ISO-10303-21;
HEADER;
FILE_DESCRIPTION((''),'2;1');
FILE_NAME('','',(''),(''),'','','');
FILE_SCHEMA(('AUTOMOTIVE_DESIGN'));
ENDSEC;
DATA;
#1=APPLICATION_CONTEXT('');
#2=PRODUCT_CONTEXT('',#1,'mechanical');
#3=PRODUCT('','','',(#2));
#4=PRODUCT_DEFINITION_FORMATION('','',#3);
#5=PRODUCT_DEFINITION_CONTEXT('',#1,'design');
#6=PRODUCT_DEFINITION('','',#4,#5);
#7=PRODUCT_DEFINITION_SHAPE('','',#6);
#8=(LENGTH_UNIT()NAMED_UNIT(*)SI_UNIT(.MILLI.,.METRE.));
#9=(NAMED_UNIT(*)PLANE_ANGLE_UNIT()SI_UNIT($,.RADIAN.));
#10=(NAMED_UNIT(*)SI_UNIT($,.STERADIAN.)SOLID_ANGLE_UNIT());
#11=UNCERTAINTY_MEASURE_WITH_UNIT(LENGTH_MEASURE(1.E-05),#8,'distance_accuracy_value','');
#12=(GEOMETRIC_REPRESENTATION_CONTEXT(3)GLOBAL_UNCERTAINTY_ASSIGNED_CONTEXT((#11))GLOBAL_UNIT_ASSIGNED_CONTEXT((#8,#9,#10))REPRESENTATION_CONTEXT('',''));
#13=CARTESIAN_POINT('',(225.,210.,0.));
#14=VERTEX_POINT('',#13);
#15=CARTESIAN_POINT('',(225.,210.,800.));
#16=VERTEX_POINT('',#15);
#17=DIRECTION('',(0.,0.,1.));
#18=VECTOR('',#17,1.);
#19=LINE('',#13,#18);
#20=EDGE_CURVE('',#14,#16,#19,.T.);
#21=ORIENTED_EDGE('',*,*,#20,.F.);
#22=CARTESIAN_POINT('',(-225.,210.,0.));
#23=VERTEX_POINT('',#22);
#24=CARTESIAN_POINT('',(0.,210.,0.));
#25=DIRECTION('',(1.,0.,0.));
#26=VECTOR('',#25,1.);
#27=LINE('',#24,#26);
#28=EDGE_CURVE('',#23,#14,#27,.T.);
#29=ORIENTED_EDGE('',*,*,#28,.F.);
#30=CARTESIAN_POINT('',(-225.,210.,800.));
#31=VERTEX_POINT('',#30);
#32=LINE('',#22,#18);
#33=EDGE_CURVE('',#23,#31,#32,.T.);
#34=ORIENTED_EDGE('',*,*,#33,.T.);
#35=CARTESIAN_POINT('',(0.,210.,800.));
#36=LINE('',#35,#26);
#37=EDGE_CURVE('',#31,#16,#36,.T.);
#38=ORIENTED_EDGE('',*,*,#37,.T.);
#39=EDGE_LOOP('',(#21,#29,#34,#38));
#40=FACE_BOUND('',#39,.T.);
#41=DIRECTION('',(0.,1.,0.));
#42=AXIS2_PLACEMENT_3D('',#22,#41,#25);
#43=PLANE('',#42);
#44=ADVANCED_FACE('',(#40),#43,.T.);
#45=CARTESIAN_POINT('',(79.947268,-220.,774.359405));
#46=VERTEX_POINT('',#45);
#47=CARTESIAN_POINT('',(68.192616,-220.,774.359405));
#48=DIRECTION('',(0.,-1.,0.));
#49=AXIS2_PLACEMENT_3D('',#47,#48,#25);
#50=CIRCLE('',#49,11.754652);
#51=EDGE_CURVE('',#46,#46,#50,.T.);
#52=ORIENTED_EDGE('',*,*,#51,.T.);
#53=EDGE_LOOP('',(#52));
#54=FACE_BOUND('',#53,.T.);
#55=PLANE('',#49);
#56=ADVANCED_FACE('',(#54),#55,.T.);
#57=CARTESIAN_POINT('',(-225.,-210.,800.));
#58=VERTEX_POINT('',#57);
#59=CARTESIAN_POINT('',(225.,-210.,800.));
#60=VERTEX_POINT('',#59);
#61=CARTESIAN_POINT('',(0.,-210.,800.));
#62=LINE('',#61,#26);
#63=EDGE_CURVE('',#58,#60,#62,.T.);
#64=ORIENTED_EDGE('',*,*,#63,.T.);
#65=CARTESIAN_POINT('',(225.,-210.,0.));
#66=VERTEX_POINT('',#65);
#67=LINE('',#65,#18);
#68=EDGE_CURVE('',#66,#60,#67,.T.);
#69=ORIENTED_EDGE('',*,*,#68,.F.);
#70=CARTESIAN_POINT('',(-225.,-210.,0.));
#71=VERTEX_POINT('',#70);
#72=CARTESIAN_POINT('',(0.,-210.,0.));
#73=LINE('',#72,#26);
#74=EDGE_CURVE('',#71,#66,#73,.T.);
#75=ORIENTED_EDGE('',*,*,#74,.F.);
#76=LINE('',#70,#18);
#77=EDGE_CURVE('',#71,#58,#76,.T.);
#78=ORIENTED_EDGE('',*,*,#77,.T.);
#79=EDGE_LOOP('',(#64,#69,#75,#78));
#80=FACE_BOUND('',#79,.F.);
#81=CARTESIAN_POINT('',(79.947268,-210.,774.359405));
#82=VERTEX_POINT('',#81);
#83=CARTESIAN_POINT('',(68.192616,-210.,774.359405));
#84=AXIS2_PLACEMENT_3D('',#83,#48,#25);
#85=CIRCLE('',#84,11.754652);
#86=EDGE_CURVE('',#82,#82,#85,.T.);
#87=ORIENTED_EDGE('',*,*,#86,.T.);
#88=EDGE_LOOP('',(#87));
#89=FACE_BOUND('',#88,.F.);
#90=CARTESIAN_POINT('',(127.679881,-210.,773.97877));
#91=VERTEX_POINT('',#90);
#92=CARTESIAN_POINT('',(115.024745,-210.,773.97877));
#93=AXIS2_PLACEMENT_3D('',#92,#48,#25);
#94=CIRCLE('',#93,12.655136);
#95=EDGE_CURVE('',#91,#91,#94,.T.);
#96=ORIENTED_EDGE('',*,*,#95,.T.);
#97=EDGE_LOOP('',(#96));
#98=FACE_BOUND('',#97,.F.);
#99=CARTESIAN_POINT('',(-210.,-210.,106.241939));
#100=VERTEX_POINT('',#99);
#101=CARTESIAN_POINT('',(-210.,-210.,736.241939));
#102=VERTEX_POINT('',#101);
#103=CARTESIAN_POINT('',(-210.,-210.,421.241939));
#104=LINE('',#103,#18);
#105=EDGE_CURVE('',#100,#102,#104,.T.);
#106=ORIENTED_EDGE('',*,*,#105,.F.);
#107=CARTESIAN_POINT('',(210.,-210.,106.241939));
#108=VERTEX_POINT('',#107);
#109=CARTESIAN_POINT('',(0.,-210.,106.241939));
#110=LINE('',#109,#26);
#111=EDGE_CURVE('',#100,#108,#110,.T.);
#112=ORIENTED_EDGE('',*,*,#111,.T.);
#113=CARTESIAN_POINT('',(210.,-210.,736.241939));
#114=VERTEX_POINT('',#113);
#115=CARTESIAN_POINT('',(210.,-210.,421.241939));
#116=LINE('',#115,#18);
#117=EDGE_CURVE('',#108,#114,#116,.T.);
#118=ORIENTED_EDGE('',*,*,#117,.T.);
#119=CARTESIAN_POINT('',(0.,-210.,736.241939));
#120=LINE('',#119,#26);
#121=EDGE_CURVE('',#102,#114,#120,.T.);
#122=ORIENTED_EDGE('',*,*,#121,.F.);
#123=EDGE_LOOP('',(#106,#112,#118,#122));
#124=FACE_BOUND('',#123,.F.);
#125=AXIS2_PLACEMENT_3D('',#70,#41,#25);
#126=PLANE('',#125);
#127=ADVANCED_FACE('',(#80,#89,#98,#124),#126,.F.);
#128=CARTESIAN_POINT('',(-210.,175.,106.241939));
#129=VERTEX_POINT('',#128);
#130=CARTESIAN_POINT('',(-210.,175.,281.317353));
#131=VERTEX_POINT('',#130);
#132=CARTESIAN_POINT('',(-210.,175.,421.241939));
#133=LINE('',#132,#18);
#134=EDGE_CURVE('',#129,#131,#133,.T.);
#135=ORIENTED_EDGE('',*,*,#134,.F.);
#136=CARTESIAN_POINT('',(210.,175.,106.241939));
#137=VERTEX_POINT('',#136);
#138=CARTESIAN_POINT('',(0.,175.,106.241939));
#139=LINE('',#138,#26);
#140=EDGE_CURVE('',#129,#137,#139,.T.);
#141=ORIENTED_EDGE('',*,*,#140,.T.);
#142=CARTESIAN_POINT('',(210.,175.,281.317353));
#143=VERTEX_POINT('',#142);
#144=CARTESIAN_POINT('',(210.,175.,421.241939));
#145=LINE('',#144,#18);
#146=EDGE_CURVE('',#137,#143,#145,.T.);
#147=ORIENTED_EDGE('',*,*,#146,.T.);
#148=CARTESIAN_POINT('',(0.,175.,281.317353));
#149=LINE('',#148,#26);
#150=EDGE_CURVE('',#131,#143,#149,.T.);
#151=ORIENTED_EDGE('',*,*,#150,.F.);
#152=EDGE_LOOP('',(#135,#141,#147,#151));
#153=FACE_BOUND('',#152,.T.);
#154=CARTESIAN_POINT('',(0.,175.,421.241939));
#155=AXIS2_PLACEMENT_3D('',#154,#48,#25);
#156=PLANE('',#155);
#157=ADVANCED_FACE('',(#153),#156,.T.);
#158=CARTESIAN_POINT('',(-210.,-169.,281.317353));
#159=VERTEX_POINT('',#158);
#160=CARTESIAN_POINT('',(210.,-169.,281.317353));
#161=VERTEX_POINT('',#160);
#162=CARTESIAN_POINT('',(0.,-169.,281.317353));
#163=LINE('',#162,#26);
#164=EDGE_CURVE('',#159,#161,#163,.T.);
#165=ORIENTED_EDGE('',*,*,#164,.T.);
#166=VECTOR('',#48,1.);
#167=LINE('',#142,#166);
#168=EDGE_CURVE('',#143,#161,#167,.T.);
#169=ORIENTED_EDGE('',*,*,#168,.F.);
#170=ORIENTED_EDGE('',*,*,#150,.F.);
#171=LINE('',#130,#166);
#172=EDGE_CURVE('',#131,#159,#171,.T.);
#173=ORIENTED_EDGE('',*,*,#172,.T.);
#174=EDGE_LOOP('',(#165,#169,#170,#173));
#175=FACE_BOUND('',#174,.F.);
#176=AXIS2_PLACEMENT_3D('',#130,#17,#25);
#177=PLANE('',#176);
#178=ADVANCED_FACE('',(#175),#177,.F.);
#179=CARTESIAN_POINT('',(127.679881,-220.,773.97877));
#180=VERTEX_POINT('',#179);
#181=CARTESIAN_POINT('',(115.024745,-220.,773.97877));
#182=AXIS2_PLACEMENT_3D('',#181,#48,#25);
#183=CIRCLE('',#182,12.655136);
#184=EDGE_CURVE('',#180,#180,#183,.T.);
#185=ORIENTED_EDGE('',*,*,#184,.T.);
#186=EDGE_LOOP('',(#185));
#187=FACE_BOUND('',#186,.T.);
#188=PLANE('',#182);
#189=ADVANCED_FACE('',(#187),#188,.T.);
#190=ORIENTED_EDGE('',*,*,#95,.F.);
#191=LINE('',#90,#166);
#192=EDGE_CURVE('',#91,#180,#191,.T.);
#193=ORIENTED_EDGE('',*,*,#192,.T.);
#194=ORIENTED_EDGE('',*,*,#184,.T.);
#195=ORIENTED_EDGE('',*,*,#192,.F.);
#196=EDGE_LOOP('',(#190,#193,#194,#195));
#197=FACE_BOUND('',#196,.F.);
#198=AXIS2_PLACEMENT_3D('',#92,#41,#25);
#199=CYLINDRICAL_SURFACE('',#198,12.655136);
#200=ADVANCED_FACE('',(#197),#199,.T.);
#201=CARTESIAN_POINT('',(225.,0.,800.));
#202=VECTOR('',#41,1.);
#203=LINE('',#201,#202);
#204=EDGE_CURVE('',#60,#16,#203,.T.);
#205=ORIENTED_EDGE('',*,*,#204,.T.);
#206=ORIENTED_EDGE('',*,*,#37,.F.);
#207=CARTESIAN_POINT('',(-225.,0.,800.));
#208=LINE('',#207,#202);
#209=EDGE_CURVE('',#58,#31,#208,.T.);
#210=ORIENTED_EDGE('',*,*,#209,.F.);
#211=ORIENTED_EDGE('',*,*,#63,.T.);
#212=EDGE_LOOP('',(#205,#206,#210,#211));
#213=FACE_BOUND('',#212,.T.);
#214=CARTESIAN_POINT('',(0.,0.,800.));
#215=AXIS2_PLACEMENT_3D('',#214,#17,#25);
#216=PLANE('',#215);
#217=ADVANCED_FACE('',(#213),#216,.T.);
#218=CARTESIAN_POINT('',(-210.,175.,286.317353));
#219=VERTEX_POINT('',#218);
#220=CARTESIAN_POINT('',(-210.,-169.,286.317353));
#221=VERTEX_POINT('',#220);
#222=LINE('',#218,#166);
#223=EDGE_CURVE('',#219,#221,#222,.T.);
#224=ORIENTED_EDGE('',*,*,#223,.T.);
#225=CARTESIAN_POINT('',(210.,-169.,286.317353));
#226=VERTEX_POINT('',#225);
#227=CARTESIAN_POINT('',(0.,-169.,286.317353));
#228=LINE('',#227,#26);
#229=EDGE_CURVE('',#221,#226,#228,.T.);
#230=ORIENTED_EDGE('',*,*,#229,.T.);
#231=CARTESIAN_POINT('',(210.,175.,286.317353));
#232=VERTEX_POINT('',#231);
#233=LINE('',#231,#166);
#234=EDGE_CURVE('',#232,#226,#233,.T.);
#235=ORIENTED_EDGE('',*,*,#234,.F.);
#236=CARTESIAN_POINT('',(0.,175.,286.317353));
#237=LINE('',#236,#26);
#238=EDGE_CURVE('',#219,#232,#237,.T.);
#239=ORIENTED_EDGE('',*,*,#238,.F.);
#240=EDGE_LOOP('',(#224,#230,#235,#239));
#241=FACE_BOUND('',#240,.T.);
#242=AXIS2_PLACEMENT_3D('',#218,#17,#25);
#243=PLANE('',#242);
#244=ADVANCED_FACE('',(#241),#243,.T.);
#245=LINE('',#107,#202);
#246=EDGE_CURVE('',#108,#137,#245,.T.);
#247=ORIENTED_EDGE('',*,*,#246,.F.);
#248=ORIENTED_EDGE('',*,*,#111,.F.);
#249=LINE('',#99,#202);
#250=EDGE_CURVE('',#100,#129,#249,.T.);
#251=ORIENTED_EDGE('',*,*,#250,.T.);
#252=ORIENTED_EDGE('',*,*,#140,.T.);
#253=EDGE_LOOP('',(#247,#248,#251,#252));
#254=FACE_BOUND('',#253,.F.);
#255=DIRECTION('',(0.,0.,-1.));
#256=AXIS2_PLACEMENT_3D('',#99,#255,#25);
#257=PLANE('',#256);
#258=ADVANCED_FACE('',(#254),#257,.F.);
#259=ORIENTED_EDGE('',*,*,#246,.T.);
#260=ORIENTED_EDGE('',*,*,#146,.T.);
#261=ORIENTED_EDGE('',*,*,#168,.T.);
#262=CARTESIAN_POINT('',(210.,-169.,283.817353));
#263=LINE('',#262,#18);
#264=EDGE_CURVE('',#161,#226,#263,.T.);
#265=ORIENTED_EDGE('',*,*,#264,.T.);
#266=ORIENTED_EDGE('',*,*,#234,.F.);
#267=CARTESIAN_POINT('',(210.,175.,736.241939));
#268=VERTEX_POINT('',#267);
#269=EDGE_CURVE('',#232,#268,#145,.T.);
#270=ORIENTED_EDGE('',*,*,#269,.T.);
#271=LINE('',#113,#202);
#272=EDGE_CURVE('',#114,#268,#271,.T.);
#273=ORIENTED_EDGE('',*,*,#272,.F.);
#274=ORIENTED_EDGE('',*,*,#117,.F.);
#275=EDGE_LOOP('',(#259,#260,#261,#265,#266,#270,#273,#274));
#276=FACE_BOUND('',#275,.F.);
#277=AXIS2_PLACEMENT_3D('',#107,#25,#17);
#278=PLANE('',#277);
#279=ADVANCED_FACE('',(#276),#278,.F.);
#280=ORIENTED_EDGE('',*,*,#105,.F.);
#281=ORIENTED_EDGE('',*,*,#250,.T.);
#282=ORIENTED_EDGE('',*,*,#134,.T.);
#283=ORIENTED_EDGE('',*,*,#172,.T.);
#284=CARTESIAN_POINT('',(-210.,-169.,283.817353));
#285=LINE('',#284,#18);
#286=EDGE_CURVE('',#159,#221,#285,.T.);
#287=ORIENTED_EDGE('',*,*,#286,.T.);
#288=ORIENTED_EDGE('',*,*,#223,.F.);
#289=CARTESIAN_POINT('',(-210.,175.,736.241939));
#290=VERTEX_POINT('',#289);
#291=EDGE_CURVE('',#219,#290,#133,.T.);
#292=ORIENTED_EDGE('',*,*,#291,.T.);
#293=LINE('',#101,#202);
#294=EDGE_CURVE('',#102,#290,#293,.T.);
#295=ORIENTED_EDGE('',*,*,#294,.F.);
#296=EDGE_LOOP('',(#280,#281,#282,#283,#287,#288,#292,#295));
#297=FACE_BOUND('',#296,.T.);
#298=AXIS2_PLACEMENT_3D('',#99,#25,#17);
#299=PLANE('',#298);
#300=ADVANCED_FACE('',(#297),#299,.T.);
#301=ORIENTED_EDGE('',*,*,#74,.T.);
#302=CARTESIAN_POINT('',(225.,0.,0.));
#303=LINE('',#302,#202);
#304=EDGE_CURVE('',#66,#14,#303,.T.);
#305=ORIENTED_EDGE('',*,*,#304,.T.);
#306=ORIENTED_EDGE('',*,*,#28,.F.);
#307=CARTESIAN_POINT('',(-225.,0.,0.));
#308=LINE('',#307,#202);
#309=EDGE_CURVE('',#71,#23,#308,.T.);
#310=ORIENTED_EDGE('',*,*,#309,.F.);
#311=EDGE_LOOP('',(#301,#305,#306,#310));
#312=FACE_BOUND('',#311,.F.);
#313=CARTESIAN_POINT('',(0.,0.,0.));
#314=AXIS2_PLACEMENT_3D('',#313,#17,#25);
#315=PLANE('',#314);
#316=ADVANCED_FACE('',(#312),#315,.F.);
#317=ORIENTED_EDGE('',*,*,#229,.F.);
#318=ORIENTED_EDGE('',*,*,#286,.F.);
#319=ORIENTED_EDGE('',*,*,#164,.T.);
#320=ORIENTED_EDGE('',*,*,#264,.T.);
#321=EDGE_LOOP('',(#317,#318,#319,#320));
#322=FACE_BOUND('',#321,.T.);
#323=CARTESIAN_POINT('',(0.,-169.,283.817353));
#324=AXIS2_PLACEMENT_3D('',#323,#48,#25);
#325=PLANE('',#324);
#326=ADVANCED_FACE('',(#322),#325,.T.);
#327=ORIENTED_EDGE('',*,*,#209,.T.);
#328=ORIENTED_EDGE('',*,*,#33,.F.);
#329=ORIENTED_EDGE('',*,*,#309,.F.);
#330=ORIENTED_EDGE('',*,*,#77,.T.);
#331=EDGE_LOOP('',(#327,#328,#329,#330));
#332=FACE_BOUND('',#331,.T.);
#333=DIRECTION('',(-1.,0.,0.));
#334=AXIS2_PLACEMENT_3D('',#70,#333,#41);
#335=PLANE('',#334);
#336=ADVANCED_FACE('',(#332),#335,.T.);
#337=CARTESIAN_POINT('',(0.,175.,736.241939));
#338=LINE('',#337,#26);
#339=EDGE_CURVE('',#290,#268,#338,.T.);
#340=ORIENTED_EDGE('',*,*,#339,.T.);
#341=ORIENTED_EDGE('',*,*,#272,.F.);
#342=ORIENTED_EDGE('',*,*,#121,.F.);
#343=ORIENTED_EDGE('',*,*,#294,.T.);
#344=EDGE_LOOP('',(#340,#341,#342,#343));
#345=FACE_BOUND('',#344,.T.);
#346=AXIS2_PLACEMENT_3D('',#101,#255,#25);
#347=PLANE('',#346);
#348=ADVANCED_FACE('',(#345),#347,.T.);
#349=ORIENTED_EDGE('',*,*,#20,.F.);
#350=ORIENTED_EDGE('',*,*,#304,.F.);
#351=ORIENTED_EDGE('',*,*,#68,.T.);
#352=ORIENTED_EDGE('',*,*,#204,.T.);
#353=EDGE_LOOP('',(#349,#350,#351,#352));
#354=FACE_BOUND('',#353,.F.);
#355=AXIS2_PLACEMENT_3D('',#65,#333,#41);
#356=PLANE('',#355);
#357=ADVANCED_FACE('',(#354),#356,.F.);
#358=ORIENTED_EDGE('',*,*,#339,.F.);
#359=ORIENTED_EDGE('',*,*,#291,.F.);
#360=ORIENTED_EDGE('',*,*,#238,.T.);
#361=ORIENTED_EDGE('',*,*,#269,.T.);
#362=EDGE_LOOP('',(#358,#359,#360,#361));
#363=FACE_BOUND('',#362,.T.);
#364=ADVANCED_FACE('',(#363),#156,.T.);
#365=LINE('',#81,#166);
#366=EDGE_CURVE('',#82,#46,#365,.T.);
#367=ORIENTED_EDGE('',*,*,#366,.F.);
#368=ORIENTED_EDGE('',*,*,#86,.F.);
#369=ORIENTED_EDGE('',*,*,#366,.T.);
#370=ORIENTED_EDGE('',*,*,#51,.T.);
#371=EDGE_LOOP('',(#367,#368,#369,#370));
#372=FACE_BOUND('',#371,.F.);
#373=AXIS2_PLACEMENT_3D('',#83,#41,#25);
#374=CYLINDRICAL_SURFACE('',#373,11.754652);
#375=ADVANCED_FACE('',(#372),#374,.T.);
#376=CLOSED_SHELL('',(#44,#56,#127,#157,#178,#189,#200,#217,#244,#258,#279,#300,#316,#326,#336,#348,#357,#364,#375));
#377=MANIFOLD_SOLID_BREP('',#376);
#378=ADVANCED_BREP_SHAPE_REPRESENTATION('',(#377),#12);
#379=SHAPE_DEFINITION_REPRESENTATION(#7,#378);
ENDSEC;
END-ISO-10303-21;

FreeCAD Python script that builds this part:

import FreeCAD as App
import Part
import Sketcher

V = App.Vector
Q = App.Units.Quantity


def add_polygon(sketch, points):
    """Adds a closed chain of lines whose ends are joined by coincident constraints."""
    first, n = sketch.GeometryCount, len(points)
    for a, b in zip(points, points[1:] + points[:1]):
        sketch.addGeometry(Part.LineSegment(App.Vector(*a, 0), App.Vector(*b, 0)), False)
    for i in range(n):
        sketch.addConstraint(Sketcher.Constraint("Coincident", first + i, 2, first + (i + 1) % n, 1))

doc = App.newDocument("Part")
body = doc.addObject("PartDesign::Body", "Body")

sketch1 = doc.addObject("Sketcher::SketchObject", "Sketch")
body.addObject(sketch1)
sketch1.AttachmentSupport = (doc.XY_Plane, [""])
sketch1.MapMode = "FlatFace"
add_polygon(sketch1, [(-225, 210), (-225, -210), (225, -210), (225, 210)])
sketch1.addConstraint([
    Sketcher.Constraint("Vertical", 0),
    Sketcher.Constraint("Horizontal", 1),
    Sketcher.Constraint("Vertical", 2),
    Sketcher.Constraint("Horizontal", 3),
    Sketcher.Constraint("Symmetric", 0, 2, 2, 2, -1, 1),
    Sketcher.Constraint("DistanceX", 1, 1, 1, 2, Q("450 mm")),
    Sketcher.Constraint("DistanceY", 0, 2, 0, 1, Q("420 mm")),
])
pad1 = doc.addObject("PartDesign::Pad", "Pad")
body.addObject(pad1)
pad1.Profile = sketch1
pad1.Length = 800

sketch2 = doc.addObject("Sketcher::SketchObject", "Sketch001")
body.addObject(sketch2)
sketch2.AttachmentSupport = (doc.XZ_Plane, [""])
sketch2.MapMode = "FlatFace"
sketch2.AttachmentOffset = App.Placement(V(0, 0, 210), App.Rotation())
add_polygon(sketch2, [(-210, 736), (-210, 106), (210, 106), (210, 736)])
sketch2.addConstraint([
    Sketcher.Constraint("Vertical", 0),
    Sketcher.Constraint("Horizontal", 1),
    Sketcher.Constraint("Vertical", 2),
    Sketcher.Constraint("Horizontal", 3),
    Sketcher.Constraint("DistanceX", 1, 1, 1, 2, Q("420 mm")),
    Sketcher.Constraint("DistanceY", 0, 2, 0, 1, Q("630 mm")),
    Sketcher.Constraint("DistanceX", 0, 2, -1, 1, Q("210 mm")),
    Sketcher.Constraint("DistanceY", -1, 1, 0, 2, Q("106.241939 mm")),
])
pocket1 = doc.addObject("PartDesign::Pocket", "Pocket")
body.addObject(pocket1)
pocket1.Profile = sketch2
pocket1.Length = 385

sketch3 = doc.addObject("Sketcher::SketchObject", "Sketch002")
body.addObject(sketch3)
sketch3.AttachmentSupport = (doc.XZ_Plane, [""])
sketch3.MapMode = "FlatFace"
sketch3.AttachmentOffset = App.Placement(V(0, 0, -175), App.Rotation())
add_polygon(sketch3, [(-210, 286), (-210, 281), (210, 281), (210, 286)])
sketch3.addConstraint([
    Sketcher.Constraint("Vertical", 0),
    Sketcher.Constraint("Horizontal", 1),
    Sketcher.Constraint("Vertical", 2),
    Sketcher.Constraint("Horizontal", 3),
    Sketcher.Constraint("DistanceX", 1, 1, 1, 2, Q("420 mm")),
    Sketcher.Constraint("DistanceY", 0, 2, 0, 1, Q("5 mm")),
    Sketcher.Constraint("DistanceX", 0, 2, -1, 1, Q("210 mm")),
    Sketcher.Constraint("DistanceY", -1, 1, 0, 2, Q("281.317353 mm")),
])
pad2 = doc.addObject("PartDesign::Pad", "Pad001")
body.addObject(pad2)
pad2.Profile = sketch3
pad2.Length = 344

sketch4 = doc.addObject("Sketcher::SketchObject", "Sketch003")
body.addObject(sketch4)
sketch4.AttachmentSupport = (doc.XZ_Plane, [""])
sketch4.MapMode = "FlatFace"
sketch4.AttachmentOffset = App.Placement(V(0, 0, 210), App.Rotation())
sketch4.addGeometry([
    Part.Circle(V(68, 774, 0), V(0, 0, 1), 12),
    Part.Circle(V(115, 774, 0), V(0, 0, 1), 13),
], False)
sketch4.addConstraint([
    Sketcher.Constraint("Diameter", 0, Q("23.509304 mm")),
    Sketcher.Constraint("Diameter", 1, Q("25.310272 mm")),
    Sketcher.Constraint("DistanceY", -1, 1, 1, 3, Q("773.97877 mm")),
    Sketcher.Constraint("DistanceX", 0, 3, 1, 3, Q("46.832129 mm")),
    Sketcher.Constraint("DistanceX", -1, 1, 0, 3, Q("68.192616 mm")),
    Sketcher.Constraint("DistanceY", -1, 1, 0, 3, Q("774.359405 mm")),
])
pad3 = doc.addObject("PartDesign::Pad", "Pad002")
body.addObject(pad3)
pad3.Profile = sketch4
pad3.Length = 10

doc.recompute()
